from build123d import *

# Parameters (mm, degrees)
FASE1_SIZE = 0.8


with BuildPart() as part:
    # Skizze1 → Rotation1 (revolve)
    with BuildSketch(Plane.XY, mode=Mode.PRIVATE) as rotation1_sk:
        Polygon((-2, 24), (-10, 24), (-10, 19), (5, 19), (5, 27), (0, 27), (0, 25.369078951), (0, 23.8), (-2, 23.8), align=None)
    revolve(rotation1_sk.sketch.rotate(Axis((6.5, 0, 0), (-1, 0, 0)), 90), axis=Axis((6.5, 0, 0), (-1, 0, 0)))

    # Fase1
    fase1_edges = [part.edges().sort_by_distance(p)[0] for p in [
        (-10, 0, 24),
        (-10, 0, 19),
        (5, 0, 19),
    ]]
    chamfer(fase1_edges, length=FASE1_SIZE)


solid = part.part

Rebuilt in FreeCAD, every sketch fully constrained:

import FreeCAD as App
import Part
import Sketcher

V = App.Vector
Q = App.Units.Quantity


def edges_at(feature, points):
    """Names of the edges that pass closest to the given points."""
    edges = feature.Shape.Edges
    near = lambda p: min(range(len(edges)), key=lambda i: edges[i].distToShape(Part.Vertex(*p))[0])
    return sorted({f"Edge{near(p) + 1}" for p in points})

doc = App.newDocument("Part")
body = doc.addObject("PartDesign::Body", "Body")

# Sketch on XY plane
sketch1 = body.newObject("Sketcher::SketchObject", "Sketch")
sketch1.AttachmentSupport = (doc.getObject("XY_Plane"), [""])
sketch1.MapMode = "FlatFace"
sketch1.addGeometry(Part.LineSegment(V(-2, 24, 0), V(-10, 24, 0)), False)
sketch1.addGeometry(Part.LineSegment(V(-10, 24, 0), V(-10, 19, 0)), False)
sketch1.addGeometry(Part.LineSegment(V(-10, 19, 0), V(5, 19, 0)), False)
sketch1.addGeometry(Part.LineSegment(V(5, 19, 0), V(5, 27, 0)), False)
sketch1.addGeometry(Part.LineSegment(V(5, 27, 0), V(0, 27, 0)), False)
sketch1.addGeometry(Part.LineSegment(V(0, 27, 0), V(0, 23.8, 0)), False)
sketch1.addGeometry(Part.LineSegment(V(0, 23.8, 0), V(-2, 23.8, 0)), False)
sketch1.addGeometry(Part.LineSegment(V(-2, 23.8, 0), V(-2, 24, 0)), False)
sketch1.addConstraint(Sketcher.Constraint("Coincident", 0, 2, 1, 1))
sketch1.addConstraint(Sketcher.Constraint("Coincident", 1, 2, 2, 1))
sketch1.addConstraint(Sketcher.Constraint("Coincident", 2, 2, 3, 1))
sketch1.addConstraint(Sketcher.Constraint("Coincident", 3, 2, 4, 1))
sketch1.addConstraint(Sketcher.Constraint("Coincident", 4, 2, 5, 1))
sketch1.addConstraint(Sketcher.Constraint("Coincident", 5, 2, 6, 1))
sketch1.addConstraint(Sketcher.Constraint("Coincident", 6, 2, 7, 1))
sketch1.addConstraint(Sketcher.Constraint("Coincident", 7, 2, 0, 1))
sketch1.addConstraint(Sketcher.Constraint("Horizontal", 0))
sketch1.addConstraint(Sketcher.Constraint("Vertical", 1))
sketch1.addConstraint(Sketcher.Constraint("Horizontal", 2))
sketch1.addConstraint(Sketcher.Constraint("Vertical", 3))
sketch1.addConstraint(Sketcher.Constraint("Horizontal", 4))
sketch1.addConstraint(Sketcher.Constraint("Vertical", 5))
sketch1.addConstraint(Sketcher.Constraint("Horizontal", 6))
sketch1.addConstraint(Sketcher.Constraint("Vertical", 7))
sketch1.addConstraint(Sketcher.Constraint("PointOnObject", 4, 2, -2))
sketch1.addConstraint(Sketcher.Constraint("Equal", 4, 1))
sketch1.addConstraint(Sketcher.Constraint("Equal", 0, 3))
sketch1.addConstraint(Sketcher.Constraint("DistanceX", 0, 2, 0, 1, Q("8 mm")))
sketch1.addConstraint(Sketcher.Constraint("DistanceX", 2, 1, 2, 2, Q("15 mm")))
sketch1.addConstraint(Sketcher.Constraint("DistanceX", 4, 2, 4, 1, Q("5 mm")))
sketch1.addConstraint(Sketcher.Constraint("DistanceY", 5, 2, 5, 1, Q("3.2 mm")))
sketch1.addConstraint(Sketcher.Constraint("DistanceY", -1, 1, 0, 2, Q("24 mm")))
revolution = body.newObject("PartDesign::Revolution", "Revolution")
revolution.Profile = sketch1
revolution.ReferenceAxis = (sketch1, ["H_Axis"])
revolution.Angle = 360
doc.recompute()

chamfer = body.newObject("PartDesign::Chamfer", "Chamfer")
chamfer.Base = (revolution, edges_at(revolution, [(-10, 0, 24), (-10, 0, 19), (5, 0, 19)]))
chamfer.Size = 0.8

doc.recompute()
